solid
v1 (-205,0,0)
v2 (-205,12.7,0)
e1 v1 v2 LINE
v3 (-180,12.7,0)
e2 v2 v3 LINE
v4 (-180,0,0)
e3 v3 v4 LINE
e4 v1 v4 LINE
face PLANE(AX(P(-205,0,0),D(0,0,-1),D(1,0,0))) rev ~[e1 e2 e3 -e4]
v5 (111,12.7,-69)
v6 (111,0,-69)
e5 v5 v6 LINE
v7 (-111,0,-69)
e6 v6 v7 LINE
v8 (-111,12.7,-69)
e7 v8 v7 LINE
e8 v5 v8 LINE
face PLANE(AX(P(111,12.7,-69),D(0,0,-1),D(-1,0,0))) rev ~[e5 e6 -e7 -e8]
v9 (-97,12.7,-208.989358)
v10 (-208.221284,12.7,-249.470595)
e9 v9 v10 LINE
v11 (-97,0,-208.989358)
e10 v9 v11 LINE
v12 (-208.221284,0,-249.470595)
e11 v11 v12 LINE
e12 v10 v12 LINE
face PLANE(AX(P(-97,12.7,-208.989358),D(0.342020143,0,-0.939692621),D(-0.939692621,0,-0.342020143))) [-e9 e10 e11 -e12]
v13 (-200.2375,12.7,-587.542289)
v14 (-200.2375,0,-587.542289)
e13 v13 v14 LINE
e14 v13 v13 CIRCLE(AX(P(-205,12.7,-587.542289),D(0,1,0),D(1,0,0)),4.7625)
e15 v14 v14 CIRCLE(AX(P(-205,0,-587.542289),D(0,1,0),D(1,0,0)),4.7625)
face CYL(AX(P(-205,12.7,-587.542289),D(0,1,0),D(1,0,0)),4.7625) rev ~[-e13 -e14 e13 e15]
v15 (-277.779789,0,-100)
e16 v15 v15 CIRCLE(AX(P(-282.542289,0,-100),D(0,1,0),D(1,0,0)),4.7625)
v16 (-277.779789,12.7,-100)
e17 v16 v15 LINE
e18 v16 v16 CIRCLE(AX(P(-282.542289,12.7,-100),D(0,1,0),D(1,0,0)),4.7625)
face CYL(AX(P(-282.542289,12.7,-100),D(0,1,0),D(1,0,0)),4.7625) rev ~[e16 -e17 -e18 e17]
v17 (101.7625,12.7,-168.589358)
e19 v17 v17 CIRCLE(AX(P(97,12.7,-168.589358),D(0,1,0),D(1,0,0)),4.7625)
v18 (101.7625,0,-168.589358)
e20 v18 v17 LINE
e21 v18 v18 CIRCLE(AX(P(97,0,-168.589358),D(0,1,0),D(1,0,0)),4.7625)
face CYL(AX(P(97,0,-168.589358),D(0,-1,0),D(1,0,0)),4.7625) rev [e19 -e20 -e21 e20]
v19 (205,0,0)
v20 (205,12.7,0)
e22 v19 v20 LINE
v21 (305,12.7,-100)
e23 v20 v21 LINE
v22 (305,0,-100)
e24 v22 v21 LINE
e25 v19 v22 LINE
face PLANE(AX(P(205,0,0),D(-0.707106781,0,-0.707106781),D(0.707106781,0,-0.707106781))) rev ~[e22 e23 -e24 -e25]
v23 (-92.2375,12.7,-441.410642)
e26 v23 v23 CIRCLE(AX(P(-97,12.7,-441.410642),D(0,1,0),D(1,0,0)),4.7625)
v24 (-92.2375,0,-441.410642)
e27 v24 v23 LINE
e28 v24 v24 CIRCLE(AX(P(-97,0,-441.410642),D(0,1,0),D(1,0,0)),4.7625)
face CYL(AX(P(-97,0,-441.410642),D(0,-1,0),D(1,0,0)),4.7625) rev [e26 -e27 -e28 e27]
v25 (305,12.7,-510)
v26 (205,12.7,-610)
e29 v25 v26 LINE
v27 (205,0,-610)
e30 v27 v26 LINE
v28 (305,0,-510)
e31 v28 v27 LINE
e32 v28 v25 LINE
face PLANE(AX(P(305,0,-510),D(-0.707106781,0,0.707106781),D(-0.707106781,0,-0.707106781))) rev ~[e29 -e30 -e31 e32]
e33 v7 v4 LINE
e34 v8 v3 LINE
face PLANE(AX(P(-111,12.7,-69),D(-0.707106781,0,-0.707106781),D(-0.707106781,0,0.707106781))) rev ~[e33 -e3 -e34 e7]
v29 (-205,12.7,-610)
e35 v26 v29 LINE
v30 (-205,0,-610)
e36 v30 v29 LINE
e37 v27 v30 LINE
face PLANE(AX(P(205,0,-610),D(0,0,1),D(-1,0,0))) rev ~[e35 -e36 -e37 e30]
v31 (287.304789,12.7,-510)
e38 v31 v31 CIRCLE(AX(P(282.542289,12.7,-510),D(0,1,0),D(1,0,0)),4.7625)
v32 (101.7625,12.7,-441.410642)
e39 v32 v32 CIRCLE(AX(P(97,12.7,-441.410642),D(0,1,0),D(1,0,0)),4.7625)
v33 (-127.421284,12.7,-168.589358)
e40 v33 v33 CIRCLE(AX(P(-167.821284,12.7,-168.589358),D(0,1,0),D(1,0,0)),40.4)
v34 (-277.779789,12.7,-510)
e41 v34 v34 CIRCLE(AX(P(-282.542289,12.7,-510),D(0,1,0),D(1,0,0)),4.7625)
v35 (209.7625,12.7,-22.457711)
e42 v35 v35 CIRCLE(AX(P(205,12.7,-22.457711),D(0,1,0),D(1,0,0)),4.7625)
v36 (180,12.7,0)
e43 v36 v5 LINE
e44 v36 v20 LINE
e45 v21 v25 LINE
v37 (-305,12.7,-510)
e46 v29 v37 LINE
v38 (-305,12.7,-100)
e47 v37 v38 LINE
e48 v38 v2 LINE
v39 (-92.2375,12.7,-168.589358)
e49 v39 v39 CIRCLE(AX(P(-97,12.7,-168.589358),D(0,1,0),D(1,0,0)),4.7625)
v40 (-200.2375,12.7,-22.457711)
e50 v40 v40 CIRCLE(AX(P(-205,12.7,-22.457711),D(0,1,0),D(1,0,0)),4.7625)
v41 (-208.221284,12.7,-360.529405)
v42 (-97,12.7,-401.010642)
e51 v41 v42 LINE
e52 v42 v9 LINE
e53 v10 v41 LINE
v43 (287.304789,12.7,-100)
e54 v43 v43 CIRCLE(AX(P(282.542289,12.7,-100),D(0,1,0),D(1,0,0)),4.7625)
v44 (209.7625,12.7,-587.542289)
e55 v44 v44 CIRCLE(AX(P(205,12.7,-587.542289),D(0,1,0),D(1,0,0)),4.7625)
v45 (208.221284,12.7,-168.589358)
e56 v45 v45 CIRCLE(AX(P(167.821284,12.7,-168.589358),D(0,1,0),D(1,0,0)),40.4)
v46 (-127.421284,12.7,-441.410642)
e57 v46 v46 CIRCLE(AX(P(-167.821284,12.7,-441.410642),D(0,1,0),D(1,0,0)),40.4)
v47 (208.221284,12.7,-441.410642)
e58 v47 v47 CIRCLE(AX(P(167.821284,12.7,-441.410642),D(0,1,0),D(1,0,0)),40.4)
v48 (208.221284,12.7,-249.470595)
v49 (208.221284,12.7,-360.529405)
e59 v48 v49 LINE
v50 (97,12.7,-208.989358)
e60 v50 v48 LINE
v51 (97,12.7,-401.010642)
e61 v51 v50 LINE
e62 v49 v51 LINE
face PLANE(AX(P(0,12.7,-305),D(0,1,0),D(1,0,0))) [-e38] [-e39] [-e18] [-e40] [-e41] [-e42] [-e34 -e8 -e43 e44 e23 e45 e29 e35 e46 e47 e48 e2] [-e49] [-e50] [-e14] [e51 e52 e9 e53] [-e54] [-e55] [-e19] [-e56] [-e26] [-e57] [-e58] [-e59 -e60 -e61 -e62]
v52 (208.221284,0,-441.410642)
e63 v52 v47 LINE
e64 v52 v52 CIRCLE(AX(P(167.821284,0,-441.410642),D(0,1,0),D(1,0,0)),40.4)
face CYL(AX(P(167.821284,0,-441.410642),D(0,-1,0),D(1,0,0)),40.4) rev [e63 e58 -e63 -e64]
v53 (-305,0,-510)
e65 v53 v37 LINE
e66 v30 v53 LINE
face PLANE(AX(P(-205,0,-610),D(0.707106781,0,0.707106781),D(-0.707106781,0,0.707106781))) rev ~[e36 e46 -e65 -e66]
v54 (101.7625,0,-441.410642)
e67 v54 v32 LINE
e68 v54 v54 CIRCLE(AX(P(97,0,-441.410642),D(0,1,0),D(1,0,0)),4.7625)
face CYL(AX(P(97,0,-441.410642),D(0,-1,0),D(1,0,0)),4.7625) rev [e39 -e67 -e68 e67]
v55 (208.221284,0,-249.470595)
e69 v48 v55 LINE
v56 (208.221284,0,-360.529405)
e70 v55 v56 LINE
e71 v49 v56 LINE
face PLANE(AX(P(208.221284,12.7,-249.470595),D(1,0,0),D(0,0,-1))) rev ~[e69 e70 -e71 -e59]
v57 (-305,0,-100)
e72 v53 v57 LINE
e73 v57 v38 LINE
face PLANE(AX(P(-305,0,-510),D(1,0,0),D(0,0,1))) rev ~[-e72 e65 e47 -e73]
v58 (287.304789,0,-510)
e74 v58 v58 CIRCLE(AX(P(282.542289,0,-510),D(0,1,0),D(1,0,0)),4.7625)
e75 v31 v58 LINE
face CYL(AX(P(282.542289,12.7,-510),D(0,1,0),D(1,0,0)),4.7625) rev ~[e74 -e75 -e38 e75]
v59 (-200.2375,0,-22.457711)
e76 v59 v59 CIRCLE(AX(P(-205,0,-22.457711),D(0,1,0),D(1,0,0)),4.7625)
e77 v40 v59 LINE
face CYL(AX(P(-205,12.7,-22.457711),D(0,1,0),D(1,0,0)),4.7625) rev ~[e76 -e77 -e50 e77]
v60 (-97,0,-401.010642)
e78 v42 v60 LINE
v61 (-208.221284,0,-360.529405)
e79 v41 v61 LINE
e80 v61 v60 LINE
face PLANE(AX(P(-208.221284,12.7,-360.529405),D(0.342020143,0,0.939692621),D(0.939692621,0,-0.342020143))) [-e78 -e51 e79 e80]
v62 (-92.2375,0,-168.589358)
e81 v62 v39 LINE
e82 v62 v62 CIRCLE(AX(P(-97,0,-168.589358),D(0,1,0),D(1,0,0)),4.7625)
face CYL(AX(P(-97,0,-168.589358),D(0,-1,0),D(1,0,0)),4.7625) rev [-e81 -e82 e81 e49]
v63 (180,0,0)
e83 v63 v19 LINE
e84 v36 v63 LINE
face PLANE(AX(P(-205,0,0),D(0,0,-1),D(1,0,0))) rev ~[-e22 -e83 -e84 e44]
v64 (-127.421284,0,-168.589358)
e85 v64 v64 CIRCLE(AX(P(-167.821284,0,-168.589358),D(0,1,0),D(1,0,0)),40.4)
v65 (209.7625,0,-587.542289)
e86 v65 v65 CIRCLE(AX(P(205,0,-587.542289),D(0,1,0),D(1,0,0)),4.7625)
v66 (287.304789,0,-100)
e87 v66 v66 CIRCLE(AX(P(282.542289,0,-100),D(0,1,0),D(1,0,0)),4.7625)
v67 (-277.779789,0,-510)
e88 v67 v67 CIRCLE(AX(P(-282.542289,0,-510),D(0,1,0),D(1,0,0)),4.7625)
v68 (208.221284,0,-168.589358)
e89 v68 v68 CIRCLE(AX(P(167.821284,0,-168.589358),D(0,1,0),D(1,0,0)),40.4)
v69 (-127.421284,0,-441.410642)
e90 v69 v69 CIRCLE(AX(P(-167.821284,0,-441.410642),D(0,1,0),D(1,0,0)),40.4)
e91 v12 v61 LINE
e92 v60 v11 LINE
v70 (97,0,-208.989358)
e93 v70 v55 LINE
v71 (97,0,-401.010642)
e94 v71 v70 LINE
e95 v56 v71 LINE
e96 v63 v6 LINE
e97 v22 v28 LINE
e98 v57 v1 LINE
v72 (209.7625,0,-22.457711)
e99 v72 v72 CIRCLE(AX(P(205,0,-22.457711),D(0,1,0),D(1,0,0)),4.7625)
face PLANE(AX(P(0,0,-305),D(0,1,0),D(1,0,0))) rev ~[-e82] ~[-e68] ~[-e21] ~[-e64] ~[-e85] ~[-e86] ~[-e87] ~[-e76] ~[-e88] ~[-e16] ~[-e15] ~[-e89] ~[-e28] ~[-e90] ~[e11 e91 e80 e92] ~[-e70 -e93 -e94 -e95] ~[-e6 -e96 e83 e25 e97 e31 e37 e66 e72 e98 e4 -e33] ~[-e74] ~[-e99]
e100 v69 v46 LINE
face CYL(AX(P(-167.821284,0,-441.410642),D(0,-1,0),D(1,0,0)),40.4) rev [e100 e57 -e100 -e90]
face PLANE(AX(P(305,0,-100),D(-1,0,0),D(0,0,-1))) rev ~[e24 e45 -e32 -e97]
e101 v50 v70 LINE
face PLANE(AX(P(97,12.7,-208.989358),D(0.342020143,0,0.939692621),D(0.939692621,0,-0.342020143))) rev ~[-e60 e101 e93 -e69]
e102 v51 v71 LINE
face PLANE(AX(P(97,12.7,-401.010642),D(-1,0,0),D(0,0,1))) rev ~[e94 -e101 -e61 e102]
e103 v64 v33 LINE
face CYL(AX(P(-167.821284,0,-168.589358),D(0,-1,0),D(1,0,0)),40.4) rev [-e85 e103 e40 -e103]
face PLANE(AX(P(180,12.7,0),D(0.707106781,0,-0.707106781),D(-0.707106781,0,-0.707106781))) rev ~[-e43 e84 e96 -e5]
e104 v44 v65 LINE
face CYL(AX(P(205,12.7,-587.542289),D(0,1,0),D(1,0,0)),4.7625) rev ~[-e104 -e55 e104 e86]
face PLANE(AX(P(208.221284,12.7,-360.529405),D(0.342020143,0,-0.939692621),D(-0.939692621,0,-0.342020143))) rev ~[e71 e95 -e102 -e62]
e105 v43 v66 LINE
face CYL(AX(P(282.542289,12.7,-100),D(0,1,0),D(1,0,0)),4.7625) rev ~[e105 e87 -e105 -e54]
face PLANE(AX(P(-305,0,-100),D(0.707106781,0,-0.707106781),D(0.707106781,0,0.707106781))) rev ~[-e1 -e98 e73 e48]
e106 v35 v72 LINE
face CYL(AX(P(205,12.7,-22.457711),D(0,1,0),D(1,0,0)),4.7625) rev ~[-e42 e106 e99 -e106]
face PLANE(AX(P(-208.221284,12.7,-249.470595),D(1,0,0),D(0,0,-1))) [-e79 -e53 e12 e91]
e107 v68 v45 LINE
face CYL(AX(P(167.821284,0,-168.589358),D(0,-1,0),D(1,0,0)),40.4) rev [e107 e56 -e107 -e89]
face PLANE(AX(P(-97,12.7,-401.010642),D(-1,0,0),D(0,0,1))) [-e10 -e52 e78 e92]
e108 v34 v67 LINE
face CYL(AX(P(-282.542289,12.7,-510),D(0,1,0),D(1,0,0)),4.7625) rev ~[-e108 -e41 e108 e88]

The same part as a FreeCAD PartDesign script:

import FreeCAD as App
import Part
import Sketcher

V = App.Vector
Q = App.Units.Quantity


def add_polygon(sketch, points):
    """Adds a closed chain of lines whose ends are joined by coincident constraints."""
    first, n = sketch.GeometryCount, len(points)
    for a, b in zip(points, points[1:] + points[:1]):
        sketch.addGeometry(Part.LineSegment(App.Vector(*a, 0), App.Vector(*b, 0)), False)
    for i in range(n):
        sketch.addConstraint(Sketcher.Constraint("Coincident", first + i, 2, first + (i + 1) % n, 1))

doc = App.newDocument("Part")
body = doc.addObject("PartDesign::Body", "Body")

# Sketch on XZ plane
sketch1 = body.newObject("Sketcher::SketchObject", "Sketch")
sketch1.AttachmentSupport = (doc.getObject("XZ_Plane"), [""])
sketch1.MapMode = "FlatFace"
add_polygon(sketch1, [(205, 0), (305, -100), (305, -510), (205, -610), (-205, -610), (-305, -510), (-305, -100), (-205, 0)])  # lines 0-7
sketch1.addGeometry(Part.Circle(V(-167.821284, -168.589358, 0), V(0, 0, 1), 40.4), False)  # 8
sketch1.addGeometry(Part.Circle(V(-97, -168.589358, 0), V(0, 0, 1), 4.7625), False)  # 9
sketch1.addGeometry(Part.Circle(V(97, -168.589358, 0), V(0, 0, 1), 4.7625), False)  # 10
sketch1.addGeometry(Part.Circle(V(167.821284, -168.589358, 0), V(0, 0, 1), 40.4), False)  # 11
sketch1.addGeometry(Part.Circle(V(-167.821284, -441.410642, 0), V(0, 0, 1), 40.4), False)  # 12
sketch1.addGeometry(Part.Circle(V(-97, -441.410642, 0), V(0, 0, 1), 4.7625), False)  # 13
sketch1.addGeometry(Part.Circle(V(97, -441.410642, 0), V(0, 0, 1), 4.7625), False)  # 14
sketch1.addGeometry(Part.Circle(V(167.821284, -441.410642, 0), V(0, 0, 1), 40.4), False)  # 15
sketch1.addConstraint([
    Sketcher.Constraint("Vertical", 1),
    Sketcher.Constraint("Horizontal", 3),
    Sketcher.Constraint("Vertical", 5),
    Sketcher.Constraint("Horizontal", 7),
    Sketcher.Constraint("Equal", 9, 10),
    Sketcher.Constraint("Equal", 8, 11),
    Sketcher.Constraint("Equal", 11, 12),
    Sketcher.Constraint("Equal", 10, 13),
    Sketcher.Constraint("Equal", 13, 14),
    Sketcher.Constraint("Equal", 12, 15),
    Sketcher.Constraint("Symmetric", 6, 2, 7, 2, -1, 1),
    Sketcher.Constraint("Symmetric", 9, 3, 10, 3, -2),
    Sketcher.Constraint("Symmetric", 8, 3, 11, 3, -2),
    Sketcher.Constraint("Symmetric", 13, 3, 14, 3, -2),
    Sketcher.Constraint("Symmetric", 12, 3, 15, 3, -2),
    Sketcher.Constraint("Symmetric", 1, 2, 4, 2, -2),
    Sketcher.Constraint("Perpendicular", 0, 2),
    Sketcher.Constraint("Perpendicular", 2, 4),
    Sketcher.Constraint("Perpendicular", 4, 6),
    Sketcher.Constraint("Horizontal", 8, 3, 9, 3),
    Sketcher.Constraint("Horizontal", 12, 3, 13, 3),
    Sketcher.Constraint("Horizontal", 0, 2, 5, 2),
    Sketcher.Constraint("Vertical", 8, 3, 12, 3),
    Sketcher.Constraint("Vertical", 9, 3, 13, 3),
    Sketcher.Constraint("Vertical", 3, 2, 6, 2),
    Sketcher.Constraint("Equal", 7, 1),
    Sketcher.Constraint("Diameter", 8, 80.8),
    Sketcher.Constraint("DistanceX", 3, 2, 3, 1, 410.0),
    Sketcher.Constraint("Diameter", 9, 9.525),
    Sketcher.Constraint("DistanceX", 9, 3, -1, 1, 97.0),
    Sketcher.Constraint("DistanceX", -1, 1, 0, 2, 305.0),
    Sketcher.Constraint("DistanceX", 8, 3, 11, 3, 335.642569),
    Sketcher.Constraint("DistanceY", 8, 3, -1, 1, 168.589358),
    Sketcher.Constraint("DistanceY", 12, 3, -1, 1, 441.410642),
])
pad1 = body.newObject("PartDesign::Pad", "Pad")
pad1.Profile = sketch1
pad1.Length = 12.7
pad1.Reversed = True

# Sketch on XZ plane
sketch2 = body.newObject("Sketcher::SketchObject", "Sketch001")
sketch2.AttachmentSupport = (doc.getObject("XZ_Plane"), [""])
sketch2.MapMode = "FlatFace"
sketch2.AttachmentOffset = App.Placement(V(0, 0, -12.7), App.Rotation())
add_polygon(sketch2, [(-111, -69), (-180, 0), (180, 0), (111, -69)])  # lines 0-3
sketch2.addConstraint([
    Sketcher.Constraint("Horizontal", 1),
    Sketcher.Constraint("Horizontal", 3),
    Sketcher.Constraint("Symmetric", 0, 2, 1, 2, -1, 1),
    Sketcher.Constraint("Perpendicular", 0, 2),
    Sketcher.Constraint("Equal", 0, 2),
    Sketcher.Constraint("DistanceX", 1, 1, 1, 2, 360.0),
    Sketcher.Constraint("DistanceX", 3, 2, 3, 1, 222.0),
])
pocket1 = body.newObject("PartDesign::Pocket", "Pocket")
pocket1.Profile = sketch2
pocket1.Length = 5000
pocket1.Reversed = True

# Sketch on XZ plane
sketch3 = body.newObject("Sketcher::SketchObject", "Sketch002")
sketch3.AttachmentSupport = (doc.getObject("XZ_Plane"), [""])
sketch3.MapMode = "FlatFace"
sketch3.AttachmentOffset = App.Placement(V(0, 0, -12.7), App.Rotation())
sketch3.addGeometry([
    Part.Circle(V(-205, -22.457711, 0), V(0, 0, 1), 4.7625),  # 0
    Part.Circle(V(205, -22.457711, 0), V(0, 0, 1), 4.7625),  # 1
    Part.Circle(V(-282.542289, -100, 0), V(0, 0, 1), 4.7625),  # 2
    Part.Circle(V(282.542289, -100, 0), V(0, 0, 1), 4.7625),  # 3
    Part.Circle(V(282.542289, -510, 0), V(0, 0, 1), 4.7625),  # 4
    Part.Circle(V(205, -587.542289, 0), V(0, 0, 1), 4.7625),  # 5
    Part.Circle(V(-205, -587.542289, 0), V(0, 0, 1), 4.7625),  # 6
    Part.Circle(V(-282.542289, -510, 0), V(0, 0, 1), 4.7625),  # 7
], False)
sketch3.addConstraint([
    Sketcher.Constraint("Equal", 0, 1),
    Sketcher.Constraint("Equal", 1, 2),
    Sketcher.Constraint("Equal", 2, 3),
    Sketcher.Constraint("Equal", 3, 4),
    Sketcher.Constraint("Equal", 4, 5),
    Sketcher.Constraint("Equal", 5, 6),
    Sketcher.Constraint("Equal", 6, 7),
    Sketcher.Constraint("Symmetric", 0, 3, 1, 3, -2),
    Sketcher.Constraint("Symmetric", 2, 3, 3, 3, -2),
    Sketcher.Constraint("Symmetric", 5, 3, 6, 3, -2),
    Sketcher.Constraint("Symmetric", 4, 3, 7, 3, -2),
    Sketcher.Constraint("Vertical", 3, 3, 4, 3),
    Sketcher.Constraint("Vertical", 1, 3, 5, 3),
    Sketcher.Constraint("Diameter", 0, 9.525),
    Sketcher.Constraint("DistanceX", 0, 3, -1, 1, 205.0),
    Sketcher.Constraint("DistanceY", 2, 3, -1, 1, 100.0),
    Sketcher.Constraint("DistanceY", 4, 3, -1, 1, 510.0),
    Sketcher.Constraint("DistanceY", 0, 3, -1, 1, 22.457711),
    Sketcher.Constraint("DistanceX", 2, 3, -1, 1, 282.542289),
    Sketcher.Constraint("DistanceY", 5, 3, -1, 1, 587.542289),
])
pocket2 = body.newObject("PartDesign::Pocket", "Pocket001")
pocket2.Profile = sketch3
pocket2.Length = 5000
pocket2.Reversed = True

# Sketch on XZ plane
sketch4 = body.newObject("Sketcher::SketchObject", "Sketch003")
sketch4.AttachmentSupport = (doc.getObject("XZ_Plane"), [""])
sketch4.MapMode = "FlatFace"
sketch4.AttachmentOffset = App.Placement(V(0, 0, -12.7), App.Rotation())
add_polygon(sketch4, [(-97, -401.010642), (-208.221284, -360.529405), (-208.221284, -249.470595), (-97, -208.989358)])  # lines 0-3
add_polygon(sketch4, [(208.221284, -249.470595), (208.221284, -360.529405), (97, -401.010642), (97, -208.989358)])  # lines 4-7
sketch4.addConstraint([
    Sketcher.Constraint("Vertical", 1),
    Sketcher.Constraint("Vertical", 3),
    Sketcher.Constraint("Vertical", 4),
    Sketcher.Constraint("Vertical", 6),
    Sketcher.Constraint("Symmetric", 0, 2, 4, 2, -2),
    Sketcher.Constraint("Symmetric", 3, 2, 5, 2, -2),
    Sketcher.Constraint("Parallel", 2, 5),
    Sketcher.Constraint("Parallel", 0, 7),
    Sketcher.Constraint("Horizontal", 2, 2, 6, 2),
    Sketcher.Constraint("Angle", 0, Q("160 deg")),
    Sketcher.Constraint("DistanceX", 2, 2, -1, 1, 97.0),
    Sketcher.Constraint("DistanceY", 1, 1, 1, 2, 111.058811),
    Sketcher.Constraint("Distance", 0, 118.359219),
    Sketcher.Constraint("DistanceY", 0, 2, -1, 1, 360.529405),
])
pocket3 = body.newObject("PartDesign::Pocket", "Pocket002")
pocket3.Profile = sketch4
pocket3.Length = 20
pocket3.Reversed = True

doc.recompute()
